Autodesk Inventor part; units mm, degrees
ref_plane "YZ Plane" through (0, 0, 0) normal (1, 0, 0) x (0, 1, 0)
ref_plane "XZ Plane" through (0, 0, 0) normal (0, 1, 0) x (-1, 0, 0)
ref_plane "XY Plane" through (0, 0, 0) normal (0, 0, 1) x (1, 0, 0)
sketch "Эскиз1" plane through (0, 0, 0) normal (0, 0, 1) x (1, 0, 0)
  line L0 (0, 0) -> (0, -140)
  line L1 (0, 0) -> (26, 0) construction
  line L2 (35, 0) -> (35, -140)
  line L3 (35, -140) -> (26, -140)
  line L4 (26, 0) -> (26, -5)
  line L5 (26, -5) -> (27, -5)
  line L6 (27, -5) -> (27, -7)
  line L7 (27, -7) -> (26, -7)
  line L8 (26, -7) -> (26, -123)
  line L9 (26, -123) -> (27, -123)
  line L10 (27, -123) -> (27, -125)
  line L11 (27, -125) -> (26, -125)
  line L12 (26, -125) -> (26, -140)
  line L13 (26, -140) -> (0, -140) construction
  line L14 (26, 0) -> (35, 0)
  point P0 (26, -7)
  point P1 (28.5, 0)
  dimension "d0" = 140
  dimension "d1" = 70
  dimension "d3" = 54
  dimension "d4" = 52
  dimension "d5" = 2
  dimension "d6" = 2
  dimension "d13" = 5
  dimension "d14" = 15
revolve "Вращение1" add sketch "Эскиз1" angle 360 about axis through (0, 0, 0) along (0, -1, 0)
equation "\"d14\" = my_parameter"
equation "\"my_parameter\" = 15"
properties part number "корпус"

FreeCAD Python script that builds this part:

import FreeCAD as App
import Part
import Sketcher


def add_polygon(sketch, points):
    """Adds a closed chain of lines whose ends are joined by coincident constraints."""
    first, n = sketch.GeometryCount, len(points)
    for a, b in zip(points, points[1:] + points[:1]):
        sketch.addGeometry(Part.LineSegment(App.Vector(*a, 0), App.Vector(*b, 0)), False)
    for i in range(n):
        sketch.addConstraint(Sketcher.Constraint("Coincident", first + i, 2, first + (i + 1) % n, 1))

doc = App.newDocument("Part")
body = doc.addObject("PartDesign::Body", "Body")

# Sketch on XY plane
sketch1 = body.newObject("Sketcher::SketchObject", "Sketch")
sketch1.AttachmentSupport = (doc.getObject("XY_Plane"), [""])
sketch1.MapMode = "FlatFace"
add_polygon(sketch1, [(35, -140), (35, 0), (26, 0), (26, -5), (27, -5), (27, -7), (26, -7), (26, -123), (27, -123), (27, -125), (26, -125), (26, -140)])  # lines 0-11
sketch1.addConstraint(Sketcher.Constraint("Vertical", 0))
sketch1.addConstraint(Sketcher.Constraint("Horizontal", 1))
sketch1.addConstraint(Sketcher.Constraint("Vertical", 2))
sketch1.addConstraint(Sketcher.Constraint("Horizontal", 3))
sketch1.addConstraint(Sketcher.Constraint("Vertical", 4))
sketch1.addConstraint(Sketcher.Constraint("Horizontal", 5))
sketch1.addConstraint(Sketcher.Constraint("Vertical", 6))
sketch1.addConstraint(Sketcher.Constraint("Horizontal", 7))
sketch1.addConstraint(Sketcher.Constraint("Vertical", 8))
sketch1.addConstraint(Sketcher.Constraint("Horizontal", 9))
sketch1.addConstraint(Sketcher.Constraint("Vertical", 10))
sketch1.addConstraint(Sketcher.Constraint("Horizontal", 11))
sketch1.addConstraint(Sketcher.Constraint("PointOnObject", 0, 2, -1))
sketch1.addConstraint(Sketcher.Constraint("Vertical", 2, 2, 5, 2))
sketch1.addConstraint(Sketcher.Constraint("Vertical", 4, 2, 7, 2))
sketch1.addConstraint(Sketcher.Constraint("Vertical", 6, 2, 9, 2))
sketch1.addConstraint(Sketcher.Constraint("Equal", 4, 8))
sketch1.addConstraint(Sketcher.Constraint("DistanceY", 0, 1, 0, 2, 140.0))
sketch1.addConstraint(Sketcher.Constraint("DistanceY", 2, 2, 2, 1, 5.0))
sketch1.addConstraint(Sketcher.Constraint("DistanceY", 4, 2, 4, 1, 2.0))
sketch1.addConstraint(Sketcher.Constraint("DistanceY", 10, 2, 10, 1, 15.0))
sketch1.addConstraint(Sketcher.Constraint("DistanceX", 1, 2, 1, 1, 9.0))
sketch1.addConstraint(Sketcher.Constraint("DistanceX", 3, 1, 3, 2, 1.0))
sketch1.addConstraint(Sketcher.Constraint("DistanceX", -1, 1, 0, 2, 35.0))
revolution = body.newObject("PartDesign::Revolution", "Revolution")
revolution.Profile = sketch1
revolution.ReferenceAxis = (sketch1, ["V_Axis"])
revolution.Angle = 360

doc.recompute()
